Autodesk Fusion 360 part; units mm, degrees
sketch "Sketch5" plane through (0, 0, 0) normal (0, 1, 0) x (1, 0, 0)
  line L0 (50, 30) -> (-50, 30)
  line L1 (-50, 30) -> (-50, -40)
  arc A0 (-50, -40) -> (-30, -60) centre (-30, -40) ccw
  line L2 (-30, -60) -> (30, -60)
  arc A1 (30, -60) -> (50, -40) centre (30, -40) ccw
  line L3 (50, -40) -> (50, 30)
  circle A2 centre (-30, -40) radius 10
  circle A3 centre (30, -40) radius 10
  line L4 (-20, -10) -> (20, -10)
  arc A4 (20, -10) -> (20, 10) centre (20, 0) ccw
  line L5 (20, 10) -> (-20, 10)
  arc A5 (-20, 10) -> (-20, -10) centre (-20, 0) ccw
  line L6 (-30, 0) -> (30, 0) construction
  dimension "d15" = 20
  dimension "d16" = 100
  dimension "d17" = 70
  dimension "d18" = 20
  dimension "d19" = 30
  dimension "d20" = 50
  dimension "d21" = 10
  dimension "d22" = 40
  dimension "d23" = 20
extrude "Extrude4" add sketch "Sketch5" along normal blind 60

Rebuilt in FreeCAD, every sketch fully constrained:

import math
import FreeCAD as App
import Part
import Sketcher
Q = App.Units.Quantity

doc = App.newDocument("Part")
params = doc.addObject("Spreadsheet::Sheet", "Params")
for row, (alias, value) in enumerate([
    ("sketch1_width", "3.937 in"),
    ("pad1_length", "2.3622047 in"),
], start=1):
    params.set(f"A{row}", alias)
    params.set(f"B{row}", "=" + value)
    params.setAlias(f"B{row}", alias)

body = doc.addObject("PartDesign::Body", "Body")

sketch1 = doc.addObject("Sketcher::SketchObject", "Sketch")
body.addObject(sketch1)
sketch1.AttachmentSupport = (doc.XZ_Plane, [""])
sketch1.MapMode = "FlatFace"
sketch1.addGeometry(Part.LineSegment(App.Vector(50, 40, 0), App.Vector(50, -30, 0)), False)
sketch1.addGeometry(Part.LineSegment(App.Vector(50, -30, 0), App.Vector(-50, -30, 0)), False)
sketch1.addGeometry(Part.LineSegment(App.Vector(-50, -30, 0), App.Vector(-50, 40, 0)), False)
sketch1.addGeometry(Part.ArcOfCircle(Part.Circle(App.Vector(-30, 40, 0), App.Vector(0, 0, 1), 20), math.radians(90), math.radians(180)), False)
sketch1.addGeometry(Part.LineSegment(App.Vector(-30, 60, 0), App.Vector(30, 60, 0)), False)
sketch1.addGeometry(Part.ArcOfCircle(Part.Circle(App.Vector(30, 40, 0), App.Vector(0, 0, 1), 20), math.radians(0), math.radians(90)), False)
sketch1.addGeometry(Part.Circle(App.Vector(-30, 40, 0), App.Vector(0, 0, 1), 10), False)
sketch1.addGeometry(Part.Circle(App.Vector(30, 40, 0), App.Vector(0, 0, 1), 10), False)
sketch1.addGeometry(Part.LineSegment(App.Vector(20, 10, 0), App.Vector(-20, 10, 0)), False)
sketch1.addGeometry(Part.ArcOfCircle(Part.Circle(App.Vector(-20, 0, 0), App.Vector(0, 0, 1), 10), math.radians(90), math.radians(270)), False)
sketch1.addGeometry(Part.LineSegment(App.Vector(-20, -10, 0), App.Vector(20, -10, 0)), False)
sketch1.addGeometry(Part.ArcOfCircle(Part.Circle(App.Vector(20, 0, 0), App.Vector(0, 0, 1), 10), math.radians(-90), math.radians(90)), False)
sketch1.addConstraint(Sketcher.Constraint("Coincident", 0, 2, 1, 1))
sketch1.addConstraint(Sketcher.Constraint("Coincident", 1, 2, 2, 1))
sketch1.addConstraint(Sketcher.Constraint("Tangent", 2, 2, 3, 2))
sketch1.addConstraint(Sketcher.Constraint("Tangent", 3, 1, 4, 1))
sketch1.addConstraint(Sketcher.Constraint("Tangent", 4, 2, 5, 2))
sketch1.addConstraint(Sketcher.Constraint("Tangent", 5, 1, 0, 1))
sketch1.addConstraint(Sketcher.Constraint("Tangent", 8, 2, 9, 1))
sketch1.addConstraint(Sketcher.Constraint("Tangent", 9, 2, 10, 1))
sketch1.addConstraint(Sketcher.Constraint("Tangent", 10, 2, 11, 1))
sketch1.addConstraint(Sketcher.Constraint("Tangent", 11, 2, 8, 1))
sketch1.addConstraint(Sketcher.Constraint("Vertical", 0))
sketch1.addConstraint(Sketcher.Constraint("Horizontal", 1))
sketch1.addConstraint(Sketcher.Constraint("Vertical", 2))
sketch1.addConstraint(Sketcher.Constraint("Horizontal", 4))
sketch1.addConstraint(Sketcher.Constraint("Horizontal", 8))
sketch1.addConstraint(Sketcher.Constraint("Horizontal", 10))
sketch1.addConstraint(Sketcher.Constraint("Coincident", 6, 3, 3, 3))
sketch1.addConstraint(Sketcher.Constraint("Coincident", 7, 3, 5, 3))
sketch1.addConstraint(Sketcher.Constraint("Equal", 3, 5))
sketch1.addConstraint(Sketcher.Constraint("Equal", 6, 7))
sketch1.addConstraint(Sketcher.Constraint("Equal", 7, 9))
sketch1.addConstraint(Sketcher.Constraint("Symmetric", 9, 3, 11, 3, -1, 1))
sketch1.addConstraint(Sketcher.Constraint("Diameter", 6, Q("0.7874 in")))
sketch1.addConstraint(Sketcher.Constraint("Radius", 3, Q("0.7874 in")))
sketch1.addConstraint(Sketcher.Constraint("DistanceX", 1, 2, 1, 1, Q("3.937 in")))
sketch1.addConstraint(Sketcher.Constraint("DistanceX", 8, 2, 8, 1, Q("1.5748 in")))
sketch1.addConstraint(Sketcher.Constraint("DistanceY", 0, 2, 0, 1, Q("2.7559 in")))
sketch1.addConstraint(Sketcher.Constraint("DistanceX", 3, 3, -1, 1, Q("1.1811 in")))
sketch1.addConstraint(Sketcher.Constraint("DistanceY", -1, 1, 3, 3, Q("1.5748 in")))
sketch1.setExpression("Constraints[24]", "Params.sketch1_width")
pad1 = doc.addObject("PartDesign::Pad", "Pad")
body.addObject(pad1)
pad1.Profile = sketch1
pad1.setExpression("Length", "Params.pad1_length")
pad1.Reversed = True

doc.recompute()
